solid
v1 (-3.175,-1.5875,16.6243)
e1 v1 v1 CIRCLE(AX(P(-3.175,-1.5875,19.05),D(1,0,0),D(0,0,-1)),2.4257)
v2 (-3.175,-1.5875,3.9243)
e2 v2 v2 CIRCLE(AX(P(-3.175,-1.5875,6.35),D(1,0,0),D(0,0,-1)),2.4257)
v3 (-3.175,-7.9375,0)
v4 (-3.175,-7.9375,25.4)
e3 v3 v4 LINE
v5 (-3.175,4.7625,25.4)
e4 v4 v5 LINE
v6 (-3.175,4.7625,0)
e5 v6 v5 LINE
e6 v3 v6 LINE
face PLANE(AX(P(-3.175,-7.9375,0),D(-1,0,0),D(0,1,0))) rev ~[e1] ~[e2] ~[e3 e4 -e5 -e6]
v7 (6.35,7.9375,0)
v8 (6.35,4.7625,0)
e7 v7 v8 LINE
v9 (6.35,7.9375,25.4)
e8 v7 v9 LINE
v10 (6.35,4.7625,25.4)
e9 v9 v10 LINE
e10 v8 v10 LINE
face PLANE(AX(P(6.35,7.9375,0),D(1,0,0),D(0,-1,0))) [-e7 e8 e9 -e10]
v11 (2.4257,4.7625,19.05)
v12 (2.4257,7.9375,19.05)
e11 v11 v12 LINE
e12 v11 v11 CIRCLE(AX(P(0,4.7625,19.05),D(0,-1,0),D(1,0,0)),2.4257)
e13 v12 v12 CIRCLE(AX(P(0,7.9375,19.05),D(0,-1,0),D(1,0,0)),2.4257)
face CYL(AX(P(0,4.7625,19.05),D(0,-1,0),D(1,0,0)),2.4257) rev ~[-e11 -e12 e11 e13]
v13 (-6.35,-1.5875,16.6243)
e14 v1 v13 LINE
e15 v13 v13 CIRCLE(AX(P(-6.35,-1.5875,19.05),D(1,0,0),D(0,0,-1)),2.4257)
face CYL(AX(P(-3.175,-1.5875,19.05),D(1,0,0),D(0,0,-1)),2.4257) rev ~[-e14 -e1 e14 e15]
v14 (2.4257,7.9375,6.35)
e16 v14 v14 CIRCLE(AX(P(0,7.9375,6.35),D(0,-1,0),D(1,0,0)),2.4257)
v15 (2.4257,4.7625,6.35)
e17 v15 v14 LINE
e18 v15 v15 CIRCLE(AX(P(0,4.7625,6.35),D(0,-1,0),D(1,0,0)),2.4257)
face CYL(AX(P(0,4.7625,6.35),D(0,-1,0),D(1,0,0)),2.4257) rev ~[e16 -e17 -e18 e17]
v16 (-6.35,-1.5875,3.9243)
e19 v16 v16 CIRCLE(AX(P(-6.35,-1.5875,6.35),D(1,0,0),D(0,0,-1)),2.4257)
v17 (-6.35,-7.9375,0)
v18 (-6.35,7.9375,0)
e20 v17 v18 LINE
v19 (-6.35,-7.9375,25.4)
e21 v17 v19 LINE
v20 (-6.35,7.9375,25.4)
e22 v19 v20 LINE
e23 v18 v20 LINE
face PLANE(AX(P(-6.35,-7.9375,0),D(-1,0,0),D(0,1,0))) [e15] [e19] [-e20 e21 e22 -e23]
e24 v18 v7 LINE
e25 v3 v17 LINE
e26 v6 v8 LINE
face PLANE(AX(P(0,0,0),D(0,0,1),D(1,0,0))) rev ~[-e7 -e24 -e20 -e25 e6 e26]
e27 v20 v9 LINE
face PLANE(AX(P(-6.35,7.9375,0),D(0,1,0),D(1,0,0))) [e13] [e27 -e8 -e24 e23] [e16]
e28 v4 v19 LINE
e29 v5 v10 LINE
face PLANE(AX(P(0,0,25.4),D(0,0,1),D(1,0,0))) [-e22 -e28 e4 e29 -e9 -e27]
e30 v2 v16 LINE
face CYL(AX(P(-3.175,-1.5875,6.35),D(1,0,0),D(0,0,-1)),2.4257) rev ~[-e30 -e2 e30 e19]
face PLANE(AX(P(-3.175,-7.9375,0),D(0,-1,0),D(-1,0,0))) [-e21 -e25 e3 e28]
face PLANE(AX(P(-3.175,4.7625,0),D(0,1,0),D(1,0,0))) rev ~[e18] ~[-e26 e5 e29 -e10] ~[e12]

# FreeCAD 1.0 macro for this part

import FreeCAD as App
import Part
import Sketcher
from FreeCAD import Vector
Q = App.Units.Quantity


def add_polygon(sketch, points):
    """Adds a closed chain of lines whose ends are joined by coincident constraints."""
    first, n = sketch.GeometryCount, len(points)
    for a, b in zip(points, points[1:] + points[:1]):
        sketch.addGeometry(Part.LineSegment(App.Vector(*a, 0), App.Vector(*b, 0)), False)
    for i in range(n):
        sketch.addConstraint(Sketcher.Constraint("Coincident", first + i, 2, first + (i + 1) % n, 1))

doc = App.newDocument("Part")
body = doc.addObject("PartDesign::Body", "Body")

# Sketch on XY plane
sketch1 = doc.addObject("Sketcher::SketchObject", "Sketch")
body.addObject(sketch1)
sketch1.AttachmentSupport = (doc.XY_Plane, [""])
sketch1.MapMode = "FlatFace"
add_polygon(sketch1, [(-6.3, -7.9), (-3.2, -7.9), (-3.2, 4.8), (6.3, 4.8), (6.3, 7.9), (-6.3, 7.9)])  # lines 0-5
sketch1.addConstraint([
    Sketcher.Constraint("Horizontal", 0),
    Sketcher.Constraint("Vertical", 1),
    Sketcher.Constraint("Horizontal", 2),
    Sketcher.Constraint("Vertical", 3),
    Sketcher.Constraint("Horizontal", 4),
    Sketcher.Constraint("Vertical", 5),
    Sketcher.Constraint("Symmetric", 3, 2, 5, 2, -1, 1),
    Sketcher.Constraint("Equal", 4, 1),
    Sketcher.Constraint("Equal", 0, 3),
    Sketcher.Constraint("DistanceX", 4, 2, 4, 1, Q("0.5 in")),
    Sketcher.Constraint("DistanceX", 2, 1, 2, 2, Q("0.375 in")),
])
pad1 = doc.addObject("PartDesign::Pad", "Pad")
body.addObject(pad1)
pad1.Profile = sketch1
pad1.Length = Q("1 in")

# Sketch on XZ plane
sketch2 = doc.addObject("Sketcher::SketchObject", "Sketch001")
body.addObject(sketch2)
sketch2.AttachmentSupport = (doc.XZ_Plane, [""])
sketch2.MapMode = "FlatFace"
sketch2.AttachmentOffset = App.Placement(Vector(0, 0, -0.1875 * 25.4), App.Rotation())
sketch2.addGeometry([
    Part.Circle(Vector(0, 19.1, 0), Vector(0, 0, 1), 2.4),
    Part.Circle(Vector(0, 6.3, 0), Vector(0, 0, 1), 2.4),
], False)
sketch2.addConstraint([
    Sketcher.Constraint("Equal", 0, 1),
    Sketcher.Constraint("PointOnObject", 0, 3, -2),
    Sketcher.Constraint("PointOnObject", 1, 3, -2),
    Sketcher.Constraint("Diameter", 0, Q("0.191 in")),
    Sketcher.Constraint("DistanceY", -1, 1, 1, 3, Q("0.25 in")),
    Sketcher.Constraint("DistanceY", 1, 3, 0, 3, Q("0.5 in")),
])
pocket1 = doc.addObject("PartDesign::Pocket", "Pocket")
body.addObject(pocket1)
pocket1.Profile = sketch2
pocket1.Length = Q("1 in")

# Sketch on YZ plane
sketch3 = doc.addObject("Sketcher::SketchObject", "Sketch002")
body.addObject(sketch3)
sketch3.AttachmentSupport = (doc.YZ_Plane, [""])
sketch3.MapMode = "FlatFace"
sketch3.AttachmentOffset = App.Placement(Vector(0, 0, -0.125 * 25.4), App.Rotation())
sketch3.addGeometry([
    Part.Circle(Vector(-1.6, 6.3, 0), Vector(0, 0, 1), 2.4),
    Part.Circle(Vector(-1.6, 19.1, 0), Vector(0, 0, 1), 2.4),
], False)
sketch3.addConstraint([
    Sketcher.Constraint("Equal", 0, 1),
    Sketcher.Constraint("Vertical", 0, 3, 1, 3),
    Sketcher.Constraint("Diameter", 0, Q("0.191 in")),
    Sketcher.Constraint("DistanceY", -1, 1, 0, 3, Q("0.25 in")),
    Sketcher.Constraint("DistanceY", 0, 3, 1, 3, Q("0.5 in")),
    Sketcher.Constraint("DistanceX", 0, 3, -1, 1, Q("0.0625 in")),
])
pocket2 = doc.addObject("PartDesign::Pocket", "Pocket001")
body.addObject(pocket2)
pocket2.Profile = sketch3
pocket2.Length = Q("1 in")

doc.recompute()
